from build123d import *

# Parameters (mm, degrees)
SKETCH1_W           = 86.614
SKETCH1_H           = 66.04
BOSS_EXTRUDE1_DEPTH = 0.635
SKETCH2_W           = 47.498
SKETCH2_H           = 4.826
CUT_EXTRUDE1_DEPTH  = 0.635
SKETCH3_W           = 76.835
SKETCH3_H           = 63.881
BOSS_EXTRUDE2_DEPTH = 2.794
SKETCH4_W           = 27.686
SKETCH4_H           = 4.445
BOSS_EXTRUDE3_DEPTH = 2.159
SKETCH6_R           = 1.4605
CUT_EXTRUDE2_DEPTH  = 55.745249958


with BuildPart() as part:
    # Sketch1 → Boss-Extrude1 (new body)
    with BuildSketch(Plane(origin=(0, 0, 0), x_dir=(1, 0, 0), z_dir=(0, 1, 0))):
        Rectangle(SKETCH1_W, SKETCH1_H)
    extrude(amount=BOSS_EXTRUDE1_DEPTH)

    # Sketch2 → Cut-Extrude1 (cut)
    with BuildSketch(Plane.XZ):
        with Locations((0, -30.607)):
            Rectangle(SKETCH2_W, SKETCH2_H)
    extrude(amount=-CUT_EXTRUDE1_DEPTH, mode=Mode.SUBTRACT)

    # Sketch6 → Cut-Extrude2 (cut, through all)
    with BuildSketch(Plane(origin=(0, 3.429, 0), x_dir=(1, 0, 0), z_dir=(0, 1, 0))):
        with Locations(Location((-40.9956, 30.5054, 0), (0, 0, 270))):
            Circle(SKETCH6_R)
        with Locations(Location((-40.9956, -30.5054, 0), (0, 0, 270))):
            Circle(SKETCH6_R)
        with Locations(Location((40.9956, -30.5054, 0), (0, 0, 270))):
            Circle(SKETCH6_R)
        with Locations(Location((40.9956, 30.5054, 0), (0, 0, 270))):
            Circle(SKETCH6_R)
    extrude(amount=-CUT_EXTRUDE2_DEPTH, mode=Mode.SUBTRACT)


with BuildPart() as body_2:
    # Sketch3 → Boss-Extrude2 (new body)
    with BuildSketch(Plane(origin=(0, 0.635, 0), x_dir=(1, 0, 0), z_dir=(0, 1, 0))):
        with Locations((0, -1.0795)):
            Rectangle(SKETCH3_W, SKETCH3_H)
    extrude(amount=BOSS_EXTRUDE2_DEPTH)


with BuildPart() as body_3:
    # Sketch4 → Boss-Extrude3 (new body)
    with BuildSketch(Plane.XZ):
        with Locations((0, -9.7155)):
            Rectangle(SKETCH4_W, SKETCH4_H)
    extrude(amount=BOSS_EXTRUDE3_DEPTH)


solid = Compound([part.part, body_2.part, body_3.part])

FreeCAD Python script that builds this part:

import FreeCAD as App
import Part
import Sketcher
from FreeCAD import Vector
Q = App.Units.Quantity


def add_polygon(sketch, points):
    """Adds a closed chain of lines whose ends are joined by coincident constraints."""
    first, n = sketch.GeometryCount, len(points)
    for a, b in zip(points, points[1:] + points[:1]):
        sketch.addGeometry(Part.LineSegment(App.Vector(*a, 0), App.Vector(*b, 0)), False)
    for i in range(n):
        sketch.addConstraint(Sketcher.Constraint("Coincident", first + i, 2, first + (i + 1) % n, 1))

doc = App.newDocument("Part")
body = doc.addObject("PartDesign::Body", "Body")

sketch1 = body.newObject("Sketcher::SketchObject", "Sketch")
sketch1.AttachmentSupport = (doc.getObject("XZ_Plane"), [""])
sketch1.MapMode = "FlatFace"
add_polygon(sketch1, [(-43.307, -33.02), (-43.307, 33.02), (43.307, 33.02), (43.307, -33.02)])
sketch1.addConstraint([
    Sketcher.Constraint("Vertical", 0),
    Sketcher.Constraint("Horizontal", 1),
    Sketcher.Constraint("Vertical", 2),
    Sketcher.Constraint("Horizontal", 3),
    Sketcher.Constraint("Symmetric", 0, 2, 2, 2, -1, 1),
    Sketcher.Constraint("DistanceY", 0, 1, 0, 2, Q("2.6 in")),
    Sketcher.Constraint("DistanceX", 1, 1, 1, 2, Q("3.41 in")),
])
pad1 = body.newObject("PartDesign::Pad", "Pad")
pad1.Profile = sketch1
pad1.Length = Q("0.025 in")
pad1.Reversed = True

sketch2 = body.newObject("Sketcher::SketchObject", "Sketch001")
sketch2.AttachmentSupport = (doc.getObject("XZ_Plane"), [""])
sketch2.MapMode = "FlatFace"
add_polygon(sketch2, [(-23.749, -28.194), (-23.749, -33.02), (23.749, -33.02), (23.749, -28.194)])
sketch2.addConstraint([
    Sketcher.Constraint("Vertical", 0),
    Sketcher.Constraint("Horizontal", 1),
    Sketcher.Constraint("Vertical", 2),
    Sketcher.Constraint("Horizontal", 3),
    Sketcher.Constraint("DistanceX", 1, 1, 1, 2, Q("1.87 in")),
    Sketcher.Constraint("DistanceY", 0, 2, 0, 1, Q("0.19 in")),
    Sketcher.Constraint("DistanceY", 0, 2, -1, 1, Q("1.3 in")),
    Sketcher.Constraint("DistanceX", 0, 2, -1, 1, Q("0.935 in")),
])
pocket1 = body.newObject("PartDesign::Pocket", "Pocket")
pocket1.Profile = sketch2
pocket1.Length = Q("0.025 in")

sketch3 = body.newObject("Sketcher::SketchObject", "Sketch002")
sketch3.AttachmentSupport = (doc.getObject("XZ_Plane"), [""])
sketch3.MapMode = "FlatFace"
sketch3.AttachmentOffset = App.Placement(Vector(0, 0, -0.135 * 25.4), App.Rotation())
sketch3.addGeometry([
    Part.Circle(Vector(-40.9956, -30.5054, 0), Vector(0, 0, 1), 1.4605),
    Part.Circle(Vector(-40.9956, 30.5054, 0), Vector(0, 0, 1), 1.4605),
    Part.Circle(Vector(40.9956, 30.5054, 0), Vector(0, 0, 1), 1.4605),
    Part.Circle(Vector(40.9956, -30.5054, 0), Vector(0, 0, 1), 1.4605),
], False)
sketch3.addConstraint([
    Sketcher.Constraint("Equal", 0, 1),
    Sketcher.Constraint("Equal", 1, 2),
    Sketcher.Constraint("Equal", 2, 3),
    Sketcher.Constraint("Symmetric", 0, 3, 2, 3, -1, 1),
    Sketcher.Constraint("Symmetric", 1, 3, 3, 3, -1, 1),
    Sketcher.Constraint("Symmetric", 1, 3, 2, 3, -2),
    Sketcher.Constraint("Diameter", 0, Q("0.115 in")),
    Sketcher.Constraint("DistanceX", 0, 3, -1, 1, Q("1.614 in")),
    Sketcher.Constraint("DistanceY", 0, 3, -1, 1, Q("1.201 in")),
])
pocket2 = body.newObject("PartDesign::Pocket", "Pocket001")
pocket2.Profile = sketch3
pocket2.Type = "ThroughAll"
pocket2.Reversed = True
body2 = doc.addObject("PartDesign::Body", "Body001")

sketch4 = body2.newObject("Sketcher::SketchObject", "Sketch003")
sketch4.AttachmentSupport = (doc.getObject("XZ_Plane001"), [""])
sketch4.MapMode = "FlatFace"
sketch4.AttachmentOffset = App.Placement(Vector(0, 0, -0.025 * 25.4), App.Rotation())
add_polygon(sketch4, [(-38.4175, -30.861), (-38.4175, 33.02), (38.4175, 33.02), (38.4175, -30.861)])
sketch4.addConstraint([
    Sketcher.Constraint("Vertical", 0),
    Sketcher.Constraint("Horizontal", 1),
    Sketcher.Constraint("Vertical", 2),
    Sketcher.Constraint("Horizontal", 3),
    Sketcher.Constraint("DistanceY", -1, 1, 0, 2, Q("1.3 in")),
    Sketcher.Constraint("DistanceX", 1, 1, 1, 2, Q("3.025 in")),
    Sketcher.Constraint("DistanceY", 0, 1, 0, 2, Q("2.515 in")),
    Sketcher.Constraint("DistanceX", 0, 2, -1, 1, Q("1.5125 in")),
])
pad2 = body2.newObject("PartDesign::Pad", "Pad001")
pad2.Profile = sketch4
pad2.Length = Q("0.11 in")
pad2.Reversed = True
body3 = doc.addObject("PartDesign::Body", "Body002")

sketch5 = body3.newObject("Sketcher::SketchObject", "Sketch004")
sketch5.AttachmentSupport = (doc.getObject("XZ_Plane002"), [""])
sketch5.MapMode = "FlatFace"
add_polygon(sketch5, [(-13.843, -7.493), (-13.843, -11.938), (13.843, -11.938), (13.843, -7.493)])
sketch5.addConstraint([
    Sketcher.Constraint("Vertical", 0),
    Sketcher.Constraint("Horizontal", 1),
    Sketcher.Constraint("Vertical", 2),
    Sketcher.Constraint("Horizontal", 3),
    Sketcher.Constraint("DistanceX", 1, 1, 1, 2, Q("1.09 in")),
    Sketcher.Constraint("DistanceY", 0, 2, 0, 1, Q("0.175 in")),
    Sketcher.Constraint("DistanceY", 0, 2, -1, 1, Q("0.47 in")),
    Sketcher.Constraint("DistanceX", 0, 2, -1, 1, Q("0.545 in")),
])
pad3 = body3.newObject("PartDesign::Pad", "Pad002")
pad3.Profile = sketch5
pad3.Length = Q("0.085 in")

doc.recompute()
